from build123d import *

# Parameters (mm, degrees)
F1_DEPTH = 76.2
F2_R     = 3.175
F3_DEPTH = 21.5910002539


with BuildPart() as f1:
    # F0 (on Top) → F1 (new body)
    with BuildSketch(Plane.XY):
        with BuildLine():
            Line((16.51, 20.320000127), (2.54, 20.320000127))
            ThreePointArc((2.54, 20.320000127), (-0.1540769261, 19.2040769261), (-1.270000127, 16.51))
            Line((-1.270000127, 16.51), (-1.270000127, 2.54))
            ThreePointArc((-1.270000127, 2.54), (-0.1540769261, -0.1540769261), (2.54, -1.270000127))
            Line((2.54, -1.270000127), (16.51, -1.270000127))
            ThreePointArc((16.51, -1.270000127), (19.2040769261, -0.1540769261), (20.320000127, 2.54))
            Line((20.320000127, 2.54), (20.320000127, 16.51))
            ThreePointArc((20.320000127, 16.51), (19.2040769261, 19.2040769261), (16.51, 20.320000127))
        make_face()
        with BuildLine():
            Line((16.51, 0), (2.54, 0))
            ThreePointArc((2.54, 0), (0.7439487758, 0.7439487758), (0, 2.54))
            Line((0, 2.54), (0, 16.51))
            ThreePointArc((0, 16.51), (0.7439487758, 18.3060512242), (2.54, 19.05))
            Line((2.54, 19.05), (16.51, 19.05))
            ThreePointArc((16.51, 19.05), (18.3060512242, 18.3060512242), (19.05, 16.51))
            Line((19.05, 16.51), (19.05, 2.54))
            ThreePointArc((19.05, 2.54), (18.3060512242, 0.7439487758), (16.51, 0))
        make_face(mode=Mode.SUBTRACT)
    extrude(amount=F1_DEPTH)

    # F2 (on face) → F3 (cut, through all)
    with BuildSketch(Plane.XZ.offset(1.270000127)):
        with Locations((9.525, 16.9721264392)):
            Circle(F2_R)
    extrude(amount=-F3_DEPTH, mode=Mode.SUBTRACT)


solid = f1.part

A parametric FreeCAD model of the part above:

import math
import FreeCAD as App
import Part
import Sketcher
from FreeCAD import Vector
Q = App.Units.Quantity

doc = App.newDocument("Part")
params = doc.addObject("Spreadsheet::Sheet", "Params")
for row, (alias, value) in enumerate([
    ("sketch1_radius", "0.1 in"),
    ("sketch1_radius2", "0.15 in"),
    ("sketch1_width", "0.55 in"),
    ("pad1_length", "3 in"),
    ("sketch2_diameter", "0.25 in"),
], start=1):
    params.set(f"A{row}", alias)
    params.set(f"B{row}", "=" + value)
    params.setAlias(f"B{row}", alias)

body = doc.addObject("PartDesign::Body", "Body")

sketch1 = body.newObject("Sketcher::SketchObject", "Sketch")
sketch1.AttachmentSupport = (doc.getObject("XY_Plane"), [""])
sketch1.MapMode = "FlatFace"
sketch1.addGeometry(Part.LineSegment(Vector(16.51, 20.32, 0), Vector(2.54, 20.32, 0)), False)
sketch1.addGeometry(Part.ArcOfCircle(Part.Circle(Vector(2.54, 16.51, 0), Vector(0, 0, 1), 3.81), math.radians(90), math.radians(180)), False)
sketch1.addGeometry(Part.LineSegment(Vector(-1.27, 16.51, 0), Vector(-1.27, 2.54, 0)), False)
sketch1.addGeometry(Part.ArcOfCircle(Part.Circle(Vector(2.54, 2.54, 0), Vector(0, 0, 1), 3.81), math.radians(180), math.radians(270)), False)
sketch1.addGeometry(Part.LineSegment(Vector(2.54, -1.27, 0), Vector(16.51, -1.27, 0)), False)
sketch1.addGeometry(Part.ArcOfCircle(Part.Circle(Vector(16.51, 2.54, 0), Vector(0, 0, 1), 3.81), math.radians(-90), math.radians(0)), False)
sketch1.addGeometry(Part.LineSegment(Vector(20.32, 2.54, 0), Vector(20.32, 16.51, 0)), False)
sketch1.addGeometry(Part.ArcOfCircle(Part.Circle(Vector(16.51, 16.51, 0), Vector(0, 0, 1), 3.81), math.radians(0), math.radians(90)), False)
sketch1.addGeometry(Part.ArcOfCircle(Part.Circle(Vector(16.51, 2.54, 0), Vector(0, 0, 1), 2.54), math.radians(-90), math.radians(0)), False)
sketch1.addGeometry(Part.LineSegment(Vector(16.51, 0, 0), Vector(2.54, 0, 0)), False)
sketch1.addGeometry(Part.ArcOfCircle(Part.Circle(Vector(2.54, 2.54, 0), Vector(0, 0, 1), 2.54), math.radians(180), math.radians(270)), False)
sketch1.addGeometry(Part.LineSegment(Vector(0, 2.54, 0), Vector(0, 16.51, 0)), False)
sketch1.addGeometry(Part.ArcOfCircle(Part.Circle(Vector(2.54, 16.51, 0), Vector(0, 0, 1), 2.54), math.radians(90), math.radians(180)), False)
sketch1.addGeometry(Part.LineSegment(Vector(2.54, 19.05, 0), Vector(16.51, 19.05, 0)), False)
sketch1.addGeometry(Part.ArcOfCircle(Part.Circle(Vector(16.51, 16.51, 0), Vector(0, 0, 1), 2.54), math.radians(0), math.radians(90)), False)
sketch1.addGeometry(Part.LineSegment(Vector(19.05, 16.51, 0), Vector(19.05, 2.54, 0)), False)
sketch1.addConstraint(Sketcher.Constraint("Tangent", 0, 2, 1, 1))
sketch1.addConstraint(Sketcher.Constraint("Tangent", 1, 2, 2, 1))
sketch1.addConstraint(Sketcher.Constraint("Tangent", 2, 2, 3, 1))
sketch1.addConstraint(Sketcher.Constraint("Tangent", 3, 2, 4, 1))
sketch1.addConstraint(Sketcher.Constraint("Tangent", 4, 2, 5, 1))
sketch1.addConstraint(Sketcher.Constraint("Tangent", 5, 2, 6, 1))
sketch1.addConstraint(Sketcher.Constraint("Tangent", 6, 2, 7, 1))
sketch1.addConstraint(Sketcher.Constraint("Tangent", 7, 2, 0, 1))
sketch1.addConstraint(Sketcher.Constraint("Tangent", 8, 1, 9, 1))
sketch1.addConstraint(Sketcher.Constraint("Tangent", 9, 2, 10, 2))
sketch1.addConstraint(Sketcher.Constraint("Tangent", 10, 1, 11, 1))
sketch1.addConstraint(Sketcher.Constraint("Tangent", 11, 2, 12, 2))
sketch1.addConstraint(Sketcher.Constraint("Tangent", 12, 1, 13, 1))
sketch1.addConstraint(Sketcher.Constraint("Tangent", 13, 2, 14, 2))
sketch1.addConstraint(Sketcher.Constraint("Tangent", 14, 1, 15, 1))
sketch1.addConstraint(Sketcher.Constraint("Tangent", 15, 2, 8, 2))
sketch1.addConstraint(Sketcher.Constraint("Horizontal", 0))
sketch1.addConstraint(Sketcher.Constraint("Vertical", 2))
sketch1.addConstraint(Sketcher.Constraint("Horizontal", 4))
sketch1.addConstraint(Sketcher.Constraint("Vertical", 6))
sketch1.addConstraint(Sketcher.Constraint("Horizontal", 9))
sketch1.addConstraint(Sketcher.Constraint("Vertical", 11))
sketch1.addConstraint(Sketcher.Constraint("Horizontal", 13))
sketch1.addConstraint(Sketcher.Constraint("Vertical", 15))
sketch1.addConstraint(Sketcher.Constraint("Coincident", 8, 3, 5, 3))
sketch1.addConstraint(Sketcher.Constraint("Coincident", 10, 3, 3, 3))
sketch1.addConstraint(Sketcher.Constraint("Coincident", 12, 3, 1, 3))
sketch1.addConstraint(Sketcher.Constraint("Equal", 1, 3))
sketch1.addConstraint(Sketcher.Constraint("Equal", 3, 5))
sketch1.addConstraint(Sketcher.Constraint("Equal", 5, 7))
sketch1.addConstraint(Sketcher.Constraint("Equal", 12, 14))
sketch1.addConstraint(Sketcher.Constraint("PointOnObject", 8, 1, -1))
sketch1.addConstraint(Sketcher.Constraint("PointOnObject", 10, 1, -2))
sketch1.addConstraint(Sketcher.Constraint("Equal", 13, 2))
sketch1.addConstraint(Sketcher.Constraint("Radius", 8, Q("0.1 in")))
sketch1.addConstraint(Sketcher.Constraint("Radius", 1, Q("0.15 in")))
sketch1.addConstraint(Sketcher.Constraint("DistanceX", 0, 2, 0, 1, Q("0.55 in")))
sketch1.setExpression("Constraints[34]", "Params.sketch1_radius")
sketch1.setExpression("Constraints[35]", "Params.sketch1_radius2")
sketch1.setExpression("Constraints[36]", "Params.sketch1_width")
pad1 = body.newObject("PartDesign::Pad", "Pad")
pad1.Profile = sketch1
pad1.setExpression("Length", "Params.pad1_length")

sketch2 = body.newObject("Sketcher::SketchObject", "Sketch001")
sketch2.AttachmentSupport = (doc.getObject("XZ_Plane"), [""])
sketch2.MapMode = "FlatFace"
sketch2.AttachmentOffset = App.Placement(Vector(0, 0, 0.05 * 25.4), App.Rotation())
sketch2.addGeometry(Part.Circle(Vector(9.525, 16.972126, 0), Vector(0, 0, 1), 3.175), False)
sketch2.addConstraint(Sketcher.Constraint("Diameter", 0, Q("0.25 in")))
sketch2.addConstraint(Sketcher.Constraint("DistanceX", -1, 1, 0, 3, Q("0.375 in")))
sketch2.addConstraint(Sketcher.Constraint("DistanceY", -1, 1, 0, 3, Q("16.972126 mm")))
sketch2.setExpression("Constraints[0]", "Params.sketch2_diameter")
pocket1 = body.newObject("PartDesign::Pocket", "Pocket")
pocket1.Profile = sketch2
pocket1.Type = "ThroughAll"

doc.recompute()
